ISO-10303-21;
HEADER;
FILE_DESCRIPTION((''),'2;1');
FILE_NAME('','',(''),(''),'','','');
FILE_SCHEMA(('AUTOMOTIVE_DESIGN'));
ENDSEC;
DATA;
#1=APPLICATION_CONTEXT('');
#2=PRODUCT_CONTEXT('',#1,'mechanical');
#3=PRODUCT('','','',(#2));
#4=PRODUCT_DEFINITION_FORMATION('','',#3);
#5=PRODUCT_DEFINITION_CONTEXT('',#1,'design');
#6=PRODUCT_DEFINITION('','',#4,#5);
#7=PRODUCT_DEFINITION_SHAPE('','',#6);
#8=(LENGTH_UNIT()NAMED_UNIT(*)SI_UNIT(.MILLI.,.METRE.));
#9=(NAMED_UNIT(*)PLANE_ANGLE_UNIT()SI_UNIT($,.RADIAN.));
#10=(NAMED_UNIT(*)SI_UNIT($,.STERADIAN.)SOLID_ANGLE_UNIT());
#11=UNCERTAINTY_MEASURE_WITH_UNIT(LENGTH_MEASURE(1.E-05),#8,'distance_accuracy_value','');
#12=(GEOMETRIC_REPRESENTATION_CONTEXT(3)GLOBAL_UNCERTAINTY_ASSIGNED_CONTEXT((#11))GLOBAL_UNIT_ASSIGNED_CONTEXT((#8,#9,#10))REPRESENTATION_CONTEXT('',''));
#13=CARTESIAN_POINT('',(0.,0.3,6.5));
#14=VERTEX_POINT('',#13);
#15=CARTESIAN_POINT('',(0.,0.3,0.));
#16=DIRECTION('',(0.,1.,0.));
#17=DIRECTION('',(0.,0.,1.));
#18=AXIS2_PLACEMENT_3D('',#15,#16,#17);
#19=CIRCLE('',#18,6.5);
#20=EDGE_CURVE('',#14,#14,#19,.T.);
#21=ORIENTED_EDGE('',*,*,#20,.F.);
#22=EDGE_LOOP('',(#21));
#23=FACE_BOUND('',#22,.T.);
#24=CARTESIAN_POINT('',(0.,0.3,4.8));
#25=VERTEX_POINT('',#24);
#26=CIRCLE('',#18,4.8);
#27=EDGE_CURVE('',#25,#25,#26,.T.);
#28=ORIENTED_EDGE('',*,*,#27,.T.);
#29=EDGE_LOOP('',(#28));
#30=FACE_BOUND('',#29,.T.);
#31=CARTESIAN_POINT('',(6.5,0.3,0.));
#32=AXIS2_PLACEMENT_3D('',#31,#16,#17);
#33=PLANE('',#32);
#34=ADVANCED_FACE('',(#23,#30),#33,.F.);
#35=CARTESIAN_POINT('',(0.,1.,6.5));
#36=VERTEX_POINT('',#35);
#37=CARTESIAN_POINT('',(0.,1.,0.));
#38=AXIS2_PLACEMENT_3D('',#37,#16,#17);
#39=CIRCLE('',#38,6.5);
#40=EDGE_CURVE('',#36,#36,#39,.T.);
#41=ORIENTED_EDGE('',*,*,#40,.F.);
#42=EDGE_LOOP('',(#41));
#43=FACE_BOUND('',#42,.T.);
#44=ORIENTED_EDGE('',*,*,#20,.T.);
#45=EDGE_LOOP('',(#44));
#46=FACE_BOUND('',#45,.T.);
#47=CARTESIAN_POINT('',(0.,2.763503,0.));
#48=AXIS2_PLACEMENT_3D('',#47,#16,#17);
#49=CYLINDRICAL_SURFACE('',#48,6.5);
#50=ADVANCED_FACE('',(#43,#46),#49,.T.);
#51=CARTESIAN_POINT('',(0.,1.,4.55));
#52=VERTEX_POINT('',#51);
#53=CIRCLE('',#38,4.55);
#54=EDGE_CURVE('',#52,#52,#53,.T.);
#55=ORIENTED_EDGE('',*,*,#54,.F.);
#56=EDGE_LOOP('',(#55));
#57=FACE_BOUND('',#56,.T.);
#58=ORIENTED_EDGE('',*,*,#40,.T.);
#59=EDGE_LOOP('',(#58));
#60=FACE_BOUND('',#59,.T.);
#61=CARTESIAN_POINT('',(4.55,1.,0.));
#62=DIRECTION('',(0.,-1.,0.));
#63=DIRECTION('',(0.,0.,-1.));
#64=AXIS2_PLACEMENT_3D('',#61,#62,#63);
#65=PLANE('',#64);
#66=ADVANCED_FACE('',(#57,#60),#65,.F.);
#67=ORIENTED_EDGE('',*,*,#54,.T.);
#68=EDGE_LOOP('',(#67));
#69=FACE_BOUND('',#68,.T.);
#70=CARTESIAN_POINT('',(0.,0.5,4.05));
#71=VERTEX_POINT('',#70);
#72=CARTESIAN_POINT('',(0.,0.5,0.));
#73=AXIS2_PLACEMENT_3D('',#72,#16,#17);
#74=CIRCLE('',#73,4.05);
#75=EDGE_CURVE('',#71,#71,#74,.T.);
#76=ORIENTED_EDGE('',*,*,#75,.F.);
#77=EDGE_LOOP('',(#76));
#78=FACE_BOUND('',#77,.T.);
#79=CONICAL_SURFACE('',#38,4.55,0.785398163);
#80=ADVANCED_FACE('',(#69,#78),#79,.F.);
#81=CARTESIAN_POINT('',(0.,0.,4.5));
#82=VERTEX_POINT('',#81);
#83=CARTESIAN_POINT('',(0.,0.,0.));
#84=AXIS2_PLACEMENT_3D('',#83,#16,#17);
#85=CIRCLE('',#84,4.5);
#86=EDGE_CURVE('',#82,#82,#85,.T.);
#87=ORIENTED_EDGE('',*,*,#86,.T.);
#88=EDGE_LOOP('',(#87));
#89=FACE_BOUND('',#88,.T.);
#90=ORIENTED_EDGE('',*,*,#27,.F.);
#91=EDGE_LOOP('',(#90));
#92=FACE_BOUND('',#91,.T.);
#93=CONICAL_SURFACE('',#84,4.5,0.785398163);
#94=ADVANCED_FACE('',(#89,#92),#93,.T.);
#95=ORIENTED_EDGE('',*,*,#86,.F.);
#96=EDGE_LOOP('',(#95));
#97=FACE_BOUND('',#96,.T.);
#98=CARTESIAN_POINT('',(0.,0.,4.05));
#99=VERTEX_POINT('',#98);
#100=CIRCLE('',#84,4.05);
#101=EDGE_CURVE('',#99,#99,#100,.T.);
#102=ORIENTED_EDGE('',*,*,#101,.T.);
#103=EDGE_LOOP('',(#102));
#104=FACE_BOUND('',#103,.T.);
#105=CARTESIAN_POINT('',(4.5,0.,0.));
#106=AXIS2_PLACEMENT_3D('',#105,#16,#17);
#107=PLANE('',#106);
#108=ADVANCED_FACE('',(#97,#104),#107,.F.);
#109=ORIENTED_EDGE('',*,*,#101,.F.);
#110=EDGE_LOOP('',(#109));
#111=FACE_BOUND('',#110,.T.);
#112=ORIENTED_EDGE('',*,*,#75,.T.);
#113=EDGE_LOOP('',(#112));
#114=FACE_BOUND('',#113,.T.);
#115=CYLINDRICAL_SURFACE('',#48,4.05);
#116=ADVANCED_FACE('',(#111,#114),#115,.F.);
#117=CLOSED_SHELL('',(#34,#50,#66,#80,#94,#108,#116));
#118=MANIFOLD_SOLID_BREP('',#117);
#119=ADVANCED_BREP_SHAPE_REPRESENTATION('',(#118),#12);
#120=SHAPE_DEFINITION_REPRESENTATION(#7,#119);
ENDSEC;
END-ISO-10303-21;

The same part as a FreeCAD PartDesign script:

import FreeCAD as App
import Part
import Sketcher

V = App.Vector
Q = App.Units.Quantity

doc = App.newDocument("Part")
params = doc.addObject("Spreadsheet::Sheet", "Params")
for row, (alias, value) in enumerate([
    ("sketch1_width", "1.7 mm"),
    ("sketch1_height", "0.5 mm"),
    ("sketch1_height2", "0.7 mm"),
    ("sketch1_width2", "0.45 mm"),
    ("revolution_angle", "360 deg"),
], start=1):
    params.set(f"A{row}", alias)
    params.set(f"B{row}", "=" + value)
    params.setAlias(f"B{row}", alias)

body = doc.addObject("PartDesign::Body", "Body")

# Sketch on XY plane
sketch1 = body.newObject("Sketcher::SketchObject", "Sketch")
sketch1.AttachmentSupport = (doc.getObject("XY_Plane"), [""])
sketch1.MapMode = "FlatFace"
sketch1.addGeometry(Part.LineSegment(V(4.55, 1, 0), V(4.05, 0.5, 0)), False)
sketch1.addGeometry(Part.LineSegment(V(4.05, 0.5, 0), V(4.05, 0, 0)), False)
sketch1.addGeometry(Part.LineSegment(V(4.05, 0, 0), V(4.5, 0, 0)), False)
sketch1.addGeometry(Part.LineSegment(V(4.5, 0, 0), V(4.8, 0.3, 0)), False)
sketch1.addGeometry(Part.LineSegment(V(4.8, 0.3, 0), V(6.5, 0.3, 0)), False)
sketch1.addGeometry(Part.LineSegment(V(6.5, 0.3, 0), V(6.5, 1, 0)), False)
sketch1.addGeometry(Part.LineSegment(V(6.5, 1, 0), V(4.55, 1, 0)), False)
sketch1.addConstraint(Sketcher.Constraint("Coincident", 0, 2, 1, 1))
sketch1.addConstraint(Sketcher.Constraint("Coincident", 1, 2, 2, 1))
sketch1.addConstraint(Sketcher.Constraint("Coincident", 2, 2, 3, 1))
sketch1.addConstraint(Sketcher.Constraint("Coincident", 3, 2, 4, 1))
sketch1.addConstraint(Sketcher.Constraint("Coincident", 4, 2, 5, 1))
sketch1.addConstraint(Sketcher.Constraint("Coincident", 5, 2, 6, 1))
sketch1.addConstraint(Sketcher.Constraint("Coincident", 6, 2, 0, 1))
sketch1.addConstraint(Sketcher.Constraint("Vertical", 1))
sketch1.addConstraint(Sketcher.Constraint("Horizontal", 2))
sketch1.addConstraint(Sketcher.Constraint("Horizontal", 4))
sketch1.addConstraint(Sketcher.Constraint("Vertical", 5))
sketch1.addConstraint(Sketcher.Constraint("Horizontal", 6))
sketch1.addConstraint(Sketcher.Constraint("PointOnObject", 1, 2, -1))
sketch1.addConstraint(Sketcher.Constraint("Parallel", 0, 3))
sketch1.addConstraint(Sketcher.Constraint("Angle", 0, Q("-135 deg")))
sketch1.addConstraint(Sketcher.Constraint("DistanceX", 4, 1, 4, 2, 1.7))
sketch1.addConstraint(Sketcher.Constraint("DistanceY", 1, 2, 1, 1, 0.5))
sketch1.addConstraint(Sketcher.Constraint("DistanceY", 5, 1, 5, 2, 0.7))
sketch1.addConstraint(Sketcher.Constraint("DistanceY", -1, 1, 5, 2, 1.0))
sketch1.addConstraint(Sketcher.Constraint("DistanceX", 2, 1, 2, 2, 0.45))
sketch1.addConstraint(Sketcher.Constraint("DistanceX", -1, 1, 2, 2, 4.5))
sketch1.setExpression("Constraints[15]", "Params.sketch1_width")
sketch1.setExpression("Constraints[16]", "Params.sketch1_height")
sketch1.setExpression("Constraints[17]", "Params.sketch1_height2")
sketch1.setExpression("Constraints[19]", "Params.sketch1_width2")
revolution = body.newObject("PartDesign::Revolution", "Revolution")
revolution.Profile = sketch1
revolution.ReferenceAxis = (sketch1, ["V_Axis"])
revolution.setExpression("Angle", "Params.revolution_angle")

doc.recompute()
